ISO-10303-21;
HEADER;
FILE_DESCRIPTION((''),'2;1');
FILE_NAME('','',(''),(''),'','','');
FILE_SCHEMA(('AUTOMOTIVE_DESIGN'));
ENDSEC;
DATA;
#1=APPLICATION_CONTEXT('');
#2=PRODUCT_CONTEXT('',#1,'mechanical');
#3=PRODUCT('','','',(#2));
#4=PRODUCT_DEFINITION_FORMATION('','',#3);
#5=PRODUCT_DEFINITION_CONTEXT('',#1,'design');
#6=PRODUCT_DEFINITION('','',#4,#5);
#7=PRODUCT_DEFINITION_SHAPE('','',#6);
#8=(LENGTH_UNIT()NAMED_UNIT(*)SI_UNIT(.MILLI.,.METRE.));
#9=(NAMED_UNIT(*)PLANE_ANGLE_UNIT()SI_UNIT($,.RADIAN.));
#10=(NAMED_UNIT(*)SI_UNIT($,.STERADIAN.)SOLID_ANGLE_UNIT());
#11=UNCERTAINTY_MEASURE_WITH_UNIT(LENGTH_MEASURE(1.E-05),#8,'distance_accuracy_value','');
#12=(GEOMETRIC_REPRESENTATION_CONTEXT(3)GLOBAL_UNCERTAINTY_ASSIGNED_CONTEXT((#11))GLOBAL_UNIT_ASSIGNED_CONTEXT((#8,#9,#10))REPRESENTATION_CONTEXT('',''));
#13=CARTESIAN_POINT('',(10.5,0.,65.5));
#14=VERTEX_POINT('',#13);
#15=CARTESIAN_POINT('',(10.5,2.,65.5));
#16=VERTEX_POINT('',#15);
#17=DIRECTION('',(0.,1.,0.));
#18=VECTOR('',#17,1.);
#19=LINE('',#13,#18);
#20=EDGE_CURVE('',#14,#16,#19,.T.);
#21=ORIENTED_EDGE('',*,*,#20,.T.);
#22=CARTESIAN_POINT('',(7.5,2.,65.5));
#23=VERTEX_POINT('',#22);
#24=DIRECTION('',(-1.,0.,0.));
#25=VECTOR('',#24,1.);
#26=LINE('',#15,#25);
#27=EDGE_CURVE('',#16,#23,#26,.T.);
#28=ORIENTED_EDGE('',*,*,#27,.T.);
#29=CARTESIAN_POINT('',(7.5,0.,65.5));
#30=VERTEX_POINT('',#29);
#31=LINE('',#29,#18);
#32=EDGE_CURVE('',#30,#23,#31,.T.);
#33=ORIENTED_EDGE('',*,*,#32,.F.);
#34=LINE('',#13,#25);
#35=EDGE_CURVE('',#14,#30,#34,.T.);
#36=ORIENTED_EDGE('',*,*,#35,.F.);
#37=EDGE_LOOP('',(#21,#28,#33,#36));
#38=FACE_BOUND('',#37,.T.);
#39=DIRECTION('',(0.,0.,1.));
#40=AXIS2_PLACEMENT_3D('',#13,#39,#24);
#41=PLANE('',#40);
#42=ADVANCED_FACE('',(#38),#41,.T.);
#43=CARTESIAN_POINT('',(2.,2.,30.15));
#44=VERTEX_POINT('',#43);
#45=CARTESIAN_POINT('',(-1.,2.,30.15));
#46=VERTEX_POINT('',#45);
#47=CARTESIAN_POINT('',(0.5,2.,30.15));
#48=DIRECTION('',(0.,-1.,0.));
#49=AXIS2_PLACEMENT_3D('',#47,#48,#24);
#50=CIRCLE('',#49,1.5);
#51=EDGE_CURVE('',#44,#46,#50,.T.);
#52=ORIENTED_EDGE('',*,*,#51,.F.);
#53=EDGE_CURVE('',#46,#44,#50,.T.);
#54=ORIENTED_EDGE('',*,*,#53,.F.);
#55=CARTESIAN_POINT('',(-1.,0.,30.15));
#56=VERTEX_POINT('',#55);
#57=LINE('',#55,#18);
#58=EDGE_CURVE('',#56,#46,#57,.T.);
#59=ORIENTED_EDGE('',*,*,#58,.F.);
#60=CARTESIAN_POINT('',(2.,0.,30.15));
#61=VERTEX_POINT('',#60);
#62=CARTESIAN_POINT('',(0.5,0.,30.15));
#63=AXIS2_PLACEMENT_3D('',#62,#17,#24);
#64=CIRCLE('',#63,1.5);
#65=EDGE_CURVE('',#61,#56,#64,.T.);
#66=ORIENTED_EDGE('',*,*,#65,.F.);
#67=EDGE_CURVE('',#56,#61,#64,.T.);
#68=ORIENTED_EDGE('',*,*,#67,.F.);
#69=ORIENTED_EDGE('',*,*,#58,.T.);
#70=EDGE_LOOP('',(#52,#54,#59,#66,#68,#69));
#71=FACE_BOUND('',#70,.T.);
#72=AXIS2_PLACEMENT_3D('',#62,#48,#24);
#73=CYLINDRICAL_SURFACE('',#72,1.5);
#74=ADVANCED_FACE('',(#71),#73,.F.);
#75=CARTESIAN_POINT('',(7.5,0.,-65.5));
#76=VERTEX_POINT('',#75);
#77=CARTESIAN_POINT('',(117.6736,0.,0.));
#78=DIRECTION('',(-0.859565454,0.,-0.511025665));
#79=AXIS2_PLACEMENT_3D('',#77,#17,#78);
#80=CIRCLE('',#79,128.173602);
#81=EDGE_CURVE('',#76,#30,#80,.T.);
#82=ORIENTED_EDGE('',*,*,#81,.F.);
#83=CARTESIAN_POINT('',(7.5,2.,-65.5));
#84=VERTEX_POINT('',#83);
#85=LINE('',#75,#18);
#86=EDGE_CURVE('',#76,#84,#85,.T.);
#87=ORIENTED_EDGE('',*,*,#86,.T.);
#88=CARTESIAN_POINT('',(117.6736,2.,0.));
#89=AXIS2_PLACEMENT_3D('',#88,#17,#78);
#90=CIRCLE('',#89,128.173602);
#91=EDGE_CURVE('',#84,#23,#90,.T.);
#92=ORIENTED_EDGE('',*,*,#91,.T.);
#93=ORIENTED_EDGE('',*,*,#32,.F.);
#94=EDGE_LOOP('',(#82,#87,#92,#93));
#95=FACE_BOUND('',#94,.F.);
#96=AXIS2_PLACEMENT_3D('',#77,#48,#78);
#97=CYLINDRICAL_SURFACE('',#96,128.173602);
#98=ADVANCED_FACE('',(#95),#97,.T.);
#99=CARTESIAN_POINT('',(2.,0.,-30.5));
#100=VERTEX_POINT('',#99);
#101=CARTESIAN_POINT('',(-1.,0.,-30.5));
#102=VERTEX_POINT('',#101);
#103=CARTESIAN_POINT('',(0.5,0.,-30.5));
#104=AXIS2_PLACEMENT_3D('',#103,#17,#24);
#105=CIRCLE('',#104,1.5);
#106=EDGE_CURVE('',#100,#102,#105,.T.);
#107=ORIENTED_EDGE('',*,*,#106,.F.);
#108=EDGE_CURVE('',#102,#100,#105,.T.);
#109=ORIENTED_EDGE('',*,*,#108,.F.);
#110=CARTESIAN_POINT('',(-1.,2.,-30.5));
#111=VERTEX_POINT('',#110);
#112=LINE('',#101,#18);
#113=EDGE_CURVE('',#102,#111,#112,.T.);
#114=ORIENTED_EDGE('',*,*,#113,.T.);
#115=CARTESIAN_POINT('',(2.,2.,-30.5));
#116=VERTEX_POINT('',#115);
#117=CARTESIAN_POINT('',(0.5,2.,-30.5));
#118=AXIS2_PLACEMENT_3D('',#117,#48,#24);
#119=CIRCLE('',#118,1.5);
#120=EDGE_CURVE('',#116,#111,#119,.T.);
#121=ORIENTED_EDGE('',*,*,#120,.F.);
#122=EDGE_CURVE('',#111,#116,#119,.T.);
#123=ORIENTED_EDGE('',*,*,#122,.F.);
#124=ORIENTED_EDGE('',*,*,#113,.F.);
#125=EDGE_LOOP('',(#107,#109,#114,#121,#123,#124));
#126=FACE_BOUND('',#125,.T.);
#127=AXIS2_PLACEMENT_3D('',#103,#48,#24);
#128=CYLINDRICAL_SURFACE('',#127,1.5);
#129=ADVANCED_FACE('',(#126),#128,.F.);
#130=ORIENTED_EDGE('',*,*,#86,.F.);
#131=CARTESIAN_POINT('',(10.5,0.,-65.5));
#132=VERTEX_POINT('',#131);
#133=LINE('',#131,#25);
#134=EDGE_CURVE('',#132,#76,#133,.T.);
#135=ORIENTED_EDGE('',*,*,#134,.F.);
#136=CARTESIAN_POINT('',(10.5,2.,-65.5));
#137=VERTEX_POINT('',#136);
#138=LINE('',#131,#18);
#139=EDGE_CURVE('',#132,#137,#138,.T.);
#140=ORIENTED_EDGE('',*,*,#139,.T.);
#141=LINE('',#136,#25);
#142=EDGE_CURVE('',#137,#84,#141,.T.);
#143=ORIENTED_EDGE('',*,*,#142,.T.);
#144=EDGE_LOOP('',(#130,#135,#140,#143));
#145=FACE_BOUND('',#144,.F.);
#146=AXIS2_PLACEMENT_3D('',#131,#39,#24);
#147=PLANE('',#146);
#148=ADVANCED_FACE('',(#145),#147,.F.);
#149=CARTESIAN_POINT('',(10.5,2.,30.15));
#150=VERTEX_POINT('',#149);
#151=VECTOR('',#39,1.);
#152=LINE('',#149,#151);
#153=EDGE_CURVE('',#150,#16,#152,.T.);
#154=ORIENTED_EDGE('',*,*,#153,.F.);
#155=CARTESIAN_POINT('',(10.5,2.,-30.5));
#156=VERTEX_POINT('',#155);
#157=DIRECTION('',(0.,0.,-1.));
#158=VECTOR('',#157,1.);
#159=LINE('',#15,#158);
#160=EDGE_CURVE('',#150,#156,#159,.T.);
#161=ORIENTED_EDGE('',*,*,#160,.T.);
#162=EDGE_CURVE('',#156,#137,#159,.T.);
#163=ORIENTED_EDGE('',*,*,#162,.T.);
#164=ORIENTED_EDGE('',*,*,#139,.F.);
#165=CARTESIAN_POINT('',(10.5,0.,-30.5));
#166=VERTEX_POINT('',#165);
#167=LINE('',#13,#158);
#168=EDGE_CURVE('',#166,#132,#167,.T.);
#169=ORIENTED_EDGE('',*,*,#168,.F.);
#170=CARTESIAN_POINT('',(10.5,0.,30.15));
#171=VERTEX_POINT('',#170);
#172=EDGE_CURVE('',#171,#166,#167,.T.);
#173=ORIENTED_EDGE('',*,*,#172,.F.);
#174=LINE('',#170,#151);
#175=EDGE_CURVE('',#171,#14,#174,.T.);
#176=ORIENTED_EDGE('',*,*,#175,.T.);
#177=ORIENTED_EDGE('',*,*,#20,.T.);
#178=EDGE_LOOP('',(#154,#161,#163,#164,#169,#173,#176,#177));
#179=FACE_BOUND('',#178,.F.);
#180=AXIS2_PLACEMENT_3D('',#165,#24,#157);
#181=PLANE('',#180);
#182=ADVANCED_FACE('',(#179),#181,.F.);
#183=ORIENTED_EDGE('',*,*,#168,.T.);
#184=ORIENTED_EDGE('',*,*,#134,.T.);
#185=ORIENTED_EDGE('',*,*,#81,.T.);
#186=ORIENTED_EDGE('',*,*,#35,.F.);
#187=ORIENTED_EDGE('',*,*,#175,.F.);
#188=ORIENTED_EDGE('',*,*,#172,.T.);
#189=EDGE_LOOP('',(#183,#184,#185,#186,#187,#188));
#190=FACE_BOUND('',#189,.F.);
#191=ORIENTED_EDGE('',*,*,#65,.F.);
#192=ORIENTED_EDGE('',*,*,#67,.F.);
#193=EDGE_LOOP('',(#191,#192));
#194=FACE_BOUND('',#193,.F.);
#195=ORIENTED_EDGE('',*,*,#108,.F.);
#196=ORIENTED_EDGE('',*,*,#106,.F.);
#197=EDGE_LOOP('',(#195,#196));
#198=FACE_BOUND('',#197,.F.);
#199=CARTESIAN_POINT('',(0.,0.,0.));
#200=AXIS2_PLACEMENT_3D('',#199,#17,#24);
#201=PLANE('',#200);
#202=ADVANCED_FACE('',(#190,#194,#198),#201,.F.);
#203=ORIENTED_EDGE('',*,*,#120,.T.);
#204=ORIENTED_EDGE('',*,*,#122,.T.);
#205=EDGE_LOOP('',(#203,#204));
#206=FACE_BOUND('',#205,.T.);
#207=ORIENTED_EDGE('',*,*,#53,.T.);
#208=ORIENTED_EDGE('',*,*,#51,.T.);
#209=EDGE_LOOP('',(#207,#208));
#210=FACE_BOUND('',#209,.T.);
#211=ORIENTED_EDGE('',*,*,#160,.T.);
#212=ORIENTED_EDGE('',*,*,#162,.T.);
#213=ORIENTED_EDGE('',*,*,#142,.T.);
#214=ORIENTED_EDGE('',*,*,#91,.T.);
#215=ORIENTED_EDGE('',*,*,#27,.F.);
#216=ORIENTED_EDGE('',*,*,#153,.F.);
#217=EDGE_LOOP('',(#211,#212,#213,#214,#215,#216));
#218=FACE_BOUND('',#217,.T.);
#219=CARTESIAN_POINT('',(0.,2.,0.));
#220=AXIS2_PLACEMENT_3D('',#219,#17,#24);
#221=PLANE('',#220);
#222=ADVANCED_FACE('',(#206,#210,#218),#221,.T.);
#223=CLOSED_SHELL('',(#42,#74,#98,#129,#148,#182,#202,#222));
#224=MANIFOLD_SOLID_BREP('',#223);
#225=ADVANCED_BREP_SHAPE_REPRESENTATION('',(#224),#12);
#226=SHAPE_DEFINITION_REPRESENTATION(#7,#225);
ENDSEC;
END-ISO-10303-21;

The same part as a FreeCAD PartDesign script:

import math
import FreeCAD as App
import Part
import Sketcher
from FreeCAD import Vector

doc = App.newDocument("Part")
params = doc.addObject("Spreadsheet::Sheet", "Params")
for row, (alias, value) in enumerate([
    ("sketch1_width", "3 mm"),
    ("sketch1_height", "35 mm"),
    ("sketch1_height2", "35.35 mm"),
    ("pad1_length", "2 mm"),
    ("sketch2_diameter", "3 mm"),
    ("pocket1_length", "2 mm"),
], start=1):
    params.set(f"A{row}", alias)
    params.set(f"B{row}", "=" + value)
    params.setAlias(f"B{row}", alias)

body = doc.addObject("PartDesign::Body", "Body")

# Sketch on XZ plane
sketch1 = body.newObject("Sketcher::SketchObject", "Sketch")
sketch1.AttachmentSupport = (doc.getObject("XZ_Plane"), [""])
sketch1.MapMode = "FlatFace"
sketch1.addGeometry(Part.LineSegment(Vector(7.5, 65.5, 0), Vector(10.5, 65.5, 0)), False)
sketch1.addGeometry(Part.LineSegment(Vector(10.5, 65.5, 0), Vector(10.5, 30.1, 0)), False)
sketch1.addGeometry(Part.LineSegment(Vector(10.5, 30.1, 0), Vector(10.5, -30.5, 0)), False)
sketch1.addGeometry(Part.LineSegment(Vector(10.5, -30.5, 0), Vector(10.5, -65.5, 0)), False)
sketch1.addGeometry(Part.LineSegment(Vector(10.5, -65.5, 0), Vector(7.5, -65.5, 0)), False)
sketch1.addGeometry(Part.ArcOfCircle(Part.Circle(Vector(117.7, 0, 0), Vector(0, 0, 1), 128.2), math.radians(149), math.radians(211)), False)
sketch1.addConstraint(Sketcher.Constraint("Coincident", 0, 2, 1, 1))
sketch1.addConstraint(Sketcher.Constraint("Coincident", 1, 2, 2, 1))
sketch1.addConstraint(Sketcher.Constraint("Coincident", 2, 2, 3, 1))
sketch1.addConstraint(Sketcher.Constraint("Coincident", 3, 2, 4, 1))
sketch1.addConstraint(Sketcher.Constraint("Coincident", 4, 2, 5, 2))
sketch1.addConstraint(Sketcher.Constraint("Coincident", 5, 1, 0, 1))
sketch1.addConstraint(Sketcher.Constraint("Horizontal", 0))
sketch1.addConstraint(Sketcher.Constraint("Vertical", 1))
sketch1.addConstraint(Sketcher.Constraint("Vertical", 2))
sketch1.addConstraint(Sketcher.Constraint("Vertical", 3))
sketch1.addConstraint(Sketcher.Constraint("Horizontal", 4))
sketch1.addConstraint(Sketcher.Constraint("Symmetric", 4, 2, 5, 1, -1))
sketch1.addConstraint(Sketcher.Constraint("DistanceX", 0, 1, 0, 2, 3.0))
sketch1.addConstraint(Sketcher.Constraint("DistanceY", 3, 2, 3, 1, 35.0))
sketch1.addConstraint(Sketcher.Constraint("DistanceY", 1, 2, 1, 1, 35.35))
sketch1.addConstraint(Sketcher.Constraint("DistanceY", 2, 2, 0, 2, 96.0))
sketch1.addConstraint(Sketcher.Constraint("DistanceX", -1, 1, 0, 2, 10.5))
sketch1.addConstraint(Sketcher.Constraint("Radius", 5, 128.1736))
sketch1.setExpression("Constraints[12]", "Params.sketch1_width")
sketch1.setExpression("Constraints[13]", "Params.sketch1_height")
sketch1.setExpression("Constraints[14]", "Params.sketch1_height2")
pad1 = body.newObject("PartDesign::Pad", "Pad")
pad1.Profile = sketch1
pad1.setExpression("Length", "Params.pad1_length")
pad1.Reversed = True

# Sketch on XZ plane
sketch2 = body.newObject("Sketcher::SketchObject", "Sketch001")
sketch2.AttachmentSupport = (doc.getObject("XZ_Plane"), [""])
sketch2.MapMode = "FlatFace"
sketch2.addGeometry(Part.Circle(Vector(0.5, 30.1, 0), Vector(0, 0, 1), 1.5), False)
sketch2.addGeometry(Part.Circle(Vector(0.5, -30.5, 0), Vector(0, 0, 1), 1.5), False)
sketch2.addConstraint(Sketcher.Constraint("Equal", 0, 1))
sketch2.addConstraint(Sketcher.Constraint("Vertical", 0, 3, 1, 3))
sketch2.addConstraint(Sketcher.Constraint("Diameter", 0, 3.0))
sketch2.addConstraint(Sketcher.Constraint("DistanceX", -1, 1, 0, 3, 0.5))
sketch2.addConstraint(Sketcher.Constraint("DistanceY", 1, 3, -1, 1, 30.5))
sketch2.addConstraint(Sketcher.Constraint("DistanceY", -1, 1, 0, 3, 30.15))
sketch2.setExpression("Constraints[2]", "Params.sketch2_diameter")
pocket1 = body.newObject("PartDesign::Pocket", "Pocket")
pocket1.Profile = sketch2
pocket1.setExpression("Length", "Params.pocket1_length")

doc.recompute()
